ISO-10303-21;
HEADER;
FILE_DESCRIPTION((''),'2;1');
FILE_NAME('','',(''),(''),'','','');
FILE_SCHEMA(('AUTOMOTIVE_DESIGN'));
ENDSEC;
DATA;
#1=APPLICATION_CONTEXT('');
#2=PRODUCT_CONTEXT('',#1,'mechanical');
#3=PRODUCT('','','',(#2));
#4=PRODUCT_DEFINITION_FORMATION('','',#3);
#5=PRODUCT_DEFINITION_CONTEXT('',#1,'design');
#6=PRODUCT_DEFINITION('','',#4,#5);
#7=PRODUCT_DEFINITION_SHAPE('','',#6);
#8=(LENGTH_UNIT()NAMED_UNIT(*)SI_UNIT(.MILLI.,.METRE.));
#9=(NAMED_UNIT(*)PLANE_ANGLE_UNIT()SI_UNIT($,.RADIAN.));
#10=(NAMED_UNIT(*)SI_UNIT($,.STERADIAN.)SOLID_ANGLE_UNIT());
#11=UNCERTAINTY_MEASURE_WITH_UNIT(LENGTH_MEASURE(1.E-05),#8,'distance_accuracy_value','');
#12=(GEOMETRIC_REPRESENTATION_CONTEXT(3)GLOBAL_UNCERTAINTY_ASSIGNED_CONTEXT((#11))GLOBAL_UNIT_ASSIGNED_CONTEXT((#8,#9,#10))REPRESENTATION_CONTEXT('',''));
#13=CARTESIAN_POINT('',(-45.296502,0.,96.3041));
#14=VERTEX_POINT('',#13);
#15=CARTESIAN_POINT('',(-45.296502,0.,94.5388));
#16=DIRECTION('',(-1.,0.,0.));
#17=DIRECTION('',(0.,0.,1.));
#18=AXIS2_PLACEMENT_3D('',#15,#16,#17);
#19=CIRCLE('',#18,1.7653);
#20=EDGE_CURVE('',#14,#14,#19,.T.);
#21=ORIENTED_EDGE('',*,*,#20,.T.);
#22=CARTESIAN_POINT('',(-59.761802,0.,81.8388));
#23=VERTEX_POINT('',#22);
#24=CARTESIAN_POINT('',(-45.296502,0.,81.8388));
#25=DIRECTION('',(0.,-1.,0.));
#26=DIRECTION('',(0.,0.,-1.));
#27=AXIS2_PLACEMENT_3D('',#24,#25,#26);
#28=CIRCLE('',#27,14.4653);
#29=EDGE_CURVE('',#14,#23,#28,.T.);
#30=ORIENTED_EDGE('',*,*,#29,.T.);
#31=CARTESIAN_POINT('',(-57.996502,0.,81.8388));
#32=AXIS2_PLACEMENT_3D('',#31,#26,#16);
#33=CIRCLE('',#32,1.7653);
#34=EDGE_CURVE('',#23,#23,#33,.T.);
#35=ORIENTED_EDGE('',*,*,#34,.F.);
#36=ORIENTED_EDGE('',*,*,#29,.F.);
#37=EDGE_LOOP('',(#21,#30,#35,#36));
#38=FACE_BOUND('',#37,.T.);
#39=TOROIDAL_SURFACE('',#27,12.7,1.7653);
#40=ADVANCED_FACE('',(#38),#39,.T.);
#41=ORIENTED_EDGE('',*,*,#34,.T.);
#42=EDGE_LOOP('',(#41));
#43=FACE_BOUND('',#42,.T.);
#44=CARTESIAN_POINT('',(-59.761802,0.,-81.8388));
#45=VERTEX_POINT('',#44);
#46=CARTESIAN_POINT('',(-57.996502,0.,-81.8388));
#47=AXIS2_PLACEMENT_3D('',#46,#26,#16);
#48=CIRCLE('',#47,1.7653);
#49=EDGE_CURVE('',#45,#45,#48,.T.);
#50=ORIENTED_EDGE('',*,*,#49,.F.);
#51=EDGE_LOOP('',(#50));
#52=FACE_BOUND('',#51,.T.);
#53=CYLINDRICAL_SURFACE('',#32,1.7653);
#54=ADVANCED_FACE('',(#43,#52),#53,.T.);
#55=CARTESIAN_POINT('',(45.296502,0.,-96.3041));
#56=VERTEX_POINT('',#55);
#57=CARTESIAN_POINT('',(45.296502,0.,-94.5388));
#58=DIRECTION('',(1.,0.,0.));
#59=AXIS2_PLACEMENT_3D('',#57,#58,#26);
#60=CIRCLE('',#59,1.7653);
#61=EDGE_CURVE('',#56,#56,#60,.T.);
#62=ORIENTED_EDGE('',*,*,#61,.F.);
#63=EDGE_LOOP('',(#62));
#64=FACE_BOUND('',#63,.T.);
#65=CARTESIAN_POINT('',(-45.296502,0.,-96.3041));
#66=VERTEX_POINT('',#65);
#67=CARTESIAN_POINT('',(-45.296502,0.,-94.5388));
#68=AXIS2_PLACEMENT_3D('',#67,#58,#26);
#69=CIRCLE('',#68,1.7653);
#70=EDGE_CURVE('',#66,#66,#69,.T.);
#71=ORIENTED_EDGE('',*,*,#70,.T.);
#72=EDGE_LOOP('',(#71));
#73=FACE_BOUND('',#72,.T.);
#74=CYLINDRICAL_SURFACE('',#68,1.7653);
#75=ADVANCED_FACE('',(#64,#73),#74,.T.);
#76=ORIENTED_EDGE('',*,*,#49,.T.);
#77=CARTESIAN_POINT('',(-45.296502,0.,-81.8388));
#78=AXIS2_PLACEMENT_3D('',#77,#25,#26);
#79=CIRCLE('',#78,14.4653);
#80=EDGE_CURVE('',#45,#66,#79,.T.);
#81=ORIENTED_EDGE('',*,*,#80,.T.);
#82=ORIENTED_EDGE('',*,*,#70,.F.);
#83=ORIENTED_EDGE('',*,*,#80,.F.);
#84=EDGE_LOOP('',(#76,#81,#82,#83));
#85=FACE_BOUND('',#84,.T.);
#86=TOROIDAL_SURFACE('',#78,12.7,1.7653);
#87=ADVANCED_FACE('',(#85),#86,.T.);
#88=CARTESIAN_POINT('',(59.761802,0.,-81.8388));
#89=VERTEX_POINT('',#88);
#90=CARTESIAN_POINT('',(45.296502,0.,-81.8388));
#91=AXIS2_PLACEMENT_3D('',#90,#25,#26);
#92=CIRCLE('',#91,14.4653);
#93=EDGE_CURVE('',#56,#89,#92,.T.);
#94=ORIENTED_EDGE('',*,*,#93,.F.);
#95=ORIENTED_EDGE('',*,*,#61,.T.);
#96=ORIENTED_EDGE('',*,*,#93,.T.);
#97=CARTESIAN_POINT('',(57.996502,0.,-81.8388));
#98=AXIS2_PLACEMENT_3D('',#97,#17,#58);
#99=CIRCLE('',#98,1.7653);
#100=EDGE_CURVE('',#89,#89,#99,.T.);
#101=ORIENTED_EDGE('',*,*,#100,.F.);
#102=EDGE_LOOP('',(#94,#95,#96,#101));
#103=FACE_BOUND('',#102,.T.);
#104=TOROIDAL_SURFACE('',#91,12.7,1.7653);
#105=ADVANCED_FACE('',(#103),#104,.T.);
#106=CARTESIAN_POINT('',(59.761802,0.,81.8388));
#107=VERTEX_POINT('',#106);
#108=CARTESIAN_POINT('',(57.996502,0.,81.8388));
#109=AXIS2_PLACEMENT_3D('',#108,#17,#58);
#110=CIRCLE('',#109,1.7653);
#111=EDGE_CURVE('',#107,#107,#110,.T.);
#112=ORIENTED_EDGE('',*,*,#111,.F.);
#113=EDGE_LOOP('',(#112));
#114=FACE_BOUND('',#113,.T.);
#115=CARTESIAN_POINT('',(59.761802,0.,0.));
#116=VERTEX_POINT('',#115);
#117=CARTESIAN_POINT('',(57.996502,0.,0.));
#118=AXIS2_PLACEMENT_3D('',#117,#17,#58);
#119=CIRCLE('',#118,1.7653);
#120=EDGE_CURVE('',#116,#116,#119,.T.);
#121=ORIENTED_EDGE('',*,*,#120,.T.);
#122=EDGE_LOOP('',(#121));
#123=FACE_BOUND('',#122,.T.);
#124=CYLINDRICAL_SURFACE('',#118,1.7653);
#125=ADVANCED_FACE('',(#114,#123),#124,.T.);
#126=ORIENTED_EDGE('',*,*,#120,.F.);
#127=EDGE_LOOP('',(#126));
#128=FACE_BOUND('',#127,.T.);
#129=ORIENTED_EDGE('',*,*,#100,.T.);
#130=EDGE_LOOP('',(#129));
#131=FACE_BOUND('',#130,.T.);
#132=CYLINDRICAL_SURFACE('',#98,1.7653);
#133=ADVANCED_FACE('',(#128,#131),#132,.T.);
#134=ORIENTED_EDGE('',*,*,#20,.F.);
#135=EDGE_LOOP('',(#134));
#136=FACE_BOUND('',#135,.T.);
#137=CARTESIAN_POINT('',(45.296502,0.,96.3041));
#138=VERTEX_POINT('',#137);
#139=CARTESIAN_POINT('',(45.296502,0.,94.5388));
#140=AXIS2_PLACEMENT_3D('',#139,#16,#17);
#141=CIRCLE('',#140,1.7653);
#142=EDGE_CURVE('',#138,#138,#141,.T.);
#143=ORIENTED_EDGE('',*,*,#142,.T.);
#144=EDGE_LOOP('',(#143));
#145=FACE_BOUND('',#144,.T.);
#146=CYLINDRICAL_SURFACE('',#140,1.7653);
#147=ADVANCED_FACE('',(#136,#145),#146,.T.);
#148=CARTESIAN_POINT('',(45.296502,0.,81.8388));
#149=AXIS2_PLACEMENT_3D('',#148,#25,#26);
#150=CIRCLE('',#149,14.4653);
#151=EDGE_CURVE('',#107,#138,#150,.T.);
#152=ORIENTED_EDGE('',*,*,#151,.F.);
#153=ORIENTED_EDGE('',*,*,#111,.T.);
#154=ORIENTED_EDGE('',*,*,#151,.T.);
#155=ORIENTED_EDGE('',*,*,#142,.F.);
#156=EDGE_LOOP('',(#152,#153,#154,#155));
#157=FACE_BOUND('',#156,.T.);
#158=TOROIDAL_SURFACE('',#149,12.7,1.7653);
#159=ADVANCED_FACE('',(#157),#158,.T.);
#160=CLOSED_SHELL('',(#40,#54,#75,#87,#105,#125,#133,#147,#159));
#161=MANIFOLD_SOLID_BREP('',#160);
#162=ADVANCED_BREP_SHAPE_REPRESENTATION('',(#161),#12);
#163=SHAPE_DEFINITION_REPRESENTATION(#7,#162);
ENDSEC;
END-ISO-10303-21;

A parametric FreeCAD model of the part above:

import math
import FreeCAD as App
import Part
import Sketcher

V = App.Vector
Q = App.Units.Quantity

doc = App.newDocument("Part")
params = doc.addObject("Spreadsheet::Sheet", "Params")
for row, (alias, value) in enumerate([
    ("sketch1_diameter", "0.139 in"),
    ("sketch2_radius", "0.5 in"),
    ("sketch2_height", "6.444 in"),
], start=1):
    params.set(f"A{row}", alias)
    params.set(f"B{row}", "=" + value)
    params.setAlias(f"B{row}", alias)

body = doc.addObject("PartDesign::Body", "Body")

# Sketch on XY plane
sketch1 = body.newObject("Sketcher::SketchObject", "Sketch")
sketch1.AttachmentSupport = (doc.getObject("XY_Plane"), [""])
sketch1.MapMode = "FlatFace"
sketch1.addGeometry(Part.Circle(V(58, 0, 0), V(0, 0, 1), 1.8), False)
sketch1.addConstraint([
    Sketcher.Constraint("PointOnObject", 0, 3, -1),
    Sketcher.Constraint("Diameter", 0, Q("0.139 in")),
    Sketcher.Constraint("DistanceX", -1, 1, 0, 3, 57.996502),
])
sketch1.setExpression("Constraints[1]", "Params.sketch1_diameter")

# Sketch on XZ plane
sketch2 = body.newObject("Sketcher::SketchObject", "Sketch001")
sketch2.AttachmentSupport = (doc.getObject("XZ_Plane"), [""])
sketch2.MapMode = "FlatFace"
sketch2.addGeometry([
    Part.LineSegment(V(45, 95, 0), V(-45, 95, 0)),  # 0
    Part.ArcOfCircle(Part.Circle(V(-45, 82, 0), V(0, 0, 1), 13), math.radians(90), math.radians(180)),  # 1
    Part.LineSegment(V(-58, 82, 0), V(-58, -82, 0)),  # 2
    Part.ArcOfCircle(Part.Circle(V(-45, -82, 0), V(0, 0, 1), 13), math.radians(180), math.radians(270)),  # 3
    Part.LineSegment(V(-45, -95, 0), V(45, -95, 0)),  # 4
    Part.ArcOfCircle(Part.Circle(V(45, -82, 0), V(0, 0, 1), 13), math.radians(-90), math.radians(0)),  # 5
    Part.LineSegment(V(58, -82, 0), V(58, 82, 0)),  # 6
    Part.ArcOfCircle(Part.Circle(V(45, 82, 0), V(0, 0, 1), 13), math.radians(0), math.radians(90)),  # 7
], False)
sketch2.addConstraint([
    Sketcher.Constraint("Tangent", 0, 2, 1, 1),
    Sketcher.Constraint("Tangent", 1, 2, 2, 1),
    Sketcher.Constraint("Tangent", 2, 2, 3, 1),
    Sketcher.Constraint("Tangent", 3, 2, 4, 1),
    Sketcher.Constraint("Tangent", 4, 2, 5, 1),
    Sketcher.Constraint("Tangent", 5, 2, 6, 1),
    Sketcher.Constraint("Tangent", 6, 2, 7, 1),
    Sketcher.Constraint("Tangent", 7, 2, 0, 1),
    Sketcher.Constraint("Horizontal", 0),
    Sketcher.Constraint("Vertical", 2),
    Sketcher.Constraint("Horizontal", 4),
    Sketcher.Constraint("Vertical", 6),
    Sketcher.Constraint("Equal", 1, 3),
    Sketcher.Constraint("Equal", 3, 5),
    Sketcher.Constraint("Equal", 5, 7),
    Sketcher.Constraint("Symmetric", 1, 3, 5, 3, -1, 1),
    Sketcher.Constraint("Radius", 1, Q("0.5 in")),
    Sketcher.Constraint("DistanceY", 2, 2, 2, 1, Q("6.444 in")),
    Sketcher.Constraint("DistanceX", 1, 3, -1, 1, 45.296502),
])
sketch2.setExpression("Constraints[16]", "Params.sketch2_radius")
sketch2.setExpression("Constraints[17]", "Params.sketch2_height")
doc.recompute()

additivepipe = body.newObject("PartDesign::AdditivePipe", "AdditivePipe")
additivepipe.Profile = sketch1
additivepipe.Spine = (sketch2, ["Edge1", "Edge2", "Edge3", "Edge4", "Edge5", "Edge6", "Edge7", "Edge8"])

doc.recompute()
